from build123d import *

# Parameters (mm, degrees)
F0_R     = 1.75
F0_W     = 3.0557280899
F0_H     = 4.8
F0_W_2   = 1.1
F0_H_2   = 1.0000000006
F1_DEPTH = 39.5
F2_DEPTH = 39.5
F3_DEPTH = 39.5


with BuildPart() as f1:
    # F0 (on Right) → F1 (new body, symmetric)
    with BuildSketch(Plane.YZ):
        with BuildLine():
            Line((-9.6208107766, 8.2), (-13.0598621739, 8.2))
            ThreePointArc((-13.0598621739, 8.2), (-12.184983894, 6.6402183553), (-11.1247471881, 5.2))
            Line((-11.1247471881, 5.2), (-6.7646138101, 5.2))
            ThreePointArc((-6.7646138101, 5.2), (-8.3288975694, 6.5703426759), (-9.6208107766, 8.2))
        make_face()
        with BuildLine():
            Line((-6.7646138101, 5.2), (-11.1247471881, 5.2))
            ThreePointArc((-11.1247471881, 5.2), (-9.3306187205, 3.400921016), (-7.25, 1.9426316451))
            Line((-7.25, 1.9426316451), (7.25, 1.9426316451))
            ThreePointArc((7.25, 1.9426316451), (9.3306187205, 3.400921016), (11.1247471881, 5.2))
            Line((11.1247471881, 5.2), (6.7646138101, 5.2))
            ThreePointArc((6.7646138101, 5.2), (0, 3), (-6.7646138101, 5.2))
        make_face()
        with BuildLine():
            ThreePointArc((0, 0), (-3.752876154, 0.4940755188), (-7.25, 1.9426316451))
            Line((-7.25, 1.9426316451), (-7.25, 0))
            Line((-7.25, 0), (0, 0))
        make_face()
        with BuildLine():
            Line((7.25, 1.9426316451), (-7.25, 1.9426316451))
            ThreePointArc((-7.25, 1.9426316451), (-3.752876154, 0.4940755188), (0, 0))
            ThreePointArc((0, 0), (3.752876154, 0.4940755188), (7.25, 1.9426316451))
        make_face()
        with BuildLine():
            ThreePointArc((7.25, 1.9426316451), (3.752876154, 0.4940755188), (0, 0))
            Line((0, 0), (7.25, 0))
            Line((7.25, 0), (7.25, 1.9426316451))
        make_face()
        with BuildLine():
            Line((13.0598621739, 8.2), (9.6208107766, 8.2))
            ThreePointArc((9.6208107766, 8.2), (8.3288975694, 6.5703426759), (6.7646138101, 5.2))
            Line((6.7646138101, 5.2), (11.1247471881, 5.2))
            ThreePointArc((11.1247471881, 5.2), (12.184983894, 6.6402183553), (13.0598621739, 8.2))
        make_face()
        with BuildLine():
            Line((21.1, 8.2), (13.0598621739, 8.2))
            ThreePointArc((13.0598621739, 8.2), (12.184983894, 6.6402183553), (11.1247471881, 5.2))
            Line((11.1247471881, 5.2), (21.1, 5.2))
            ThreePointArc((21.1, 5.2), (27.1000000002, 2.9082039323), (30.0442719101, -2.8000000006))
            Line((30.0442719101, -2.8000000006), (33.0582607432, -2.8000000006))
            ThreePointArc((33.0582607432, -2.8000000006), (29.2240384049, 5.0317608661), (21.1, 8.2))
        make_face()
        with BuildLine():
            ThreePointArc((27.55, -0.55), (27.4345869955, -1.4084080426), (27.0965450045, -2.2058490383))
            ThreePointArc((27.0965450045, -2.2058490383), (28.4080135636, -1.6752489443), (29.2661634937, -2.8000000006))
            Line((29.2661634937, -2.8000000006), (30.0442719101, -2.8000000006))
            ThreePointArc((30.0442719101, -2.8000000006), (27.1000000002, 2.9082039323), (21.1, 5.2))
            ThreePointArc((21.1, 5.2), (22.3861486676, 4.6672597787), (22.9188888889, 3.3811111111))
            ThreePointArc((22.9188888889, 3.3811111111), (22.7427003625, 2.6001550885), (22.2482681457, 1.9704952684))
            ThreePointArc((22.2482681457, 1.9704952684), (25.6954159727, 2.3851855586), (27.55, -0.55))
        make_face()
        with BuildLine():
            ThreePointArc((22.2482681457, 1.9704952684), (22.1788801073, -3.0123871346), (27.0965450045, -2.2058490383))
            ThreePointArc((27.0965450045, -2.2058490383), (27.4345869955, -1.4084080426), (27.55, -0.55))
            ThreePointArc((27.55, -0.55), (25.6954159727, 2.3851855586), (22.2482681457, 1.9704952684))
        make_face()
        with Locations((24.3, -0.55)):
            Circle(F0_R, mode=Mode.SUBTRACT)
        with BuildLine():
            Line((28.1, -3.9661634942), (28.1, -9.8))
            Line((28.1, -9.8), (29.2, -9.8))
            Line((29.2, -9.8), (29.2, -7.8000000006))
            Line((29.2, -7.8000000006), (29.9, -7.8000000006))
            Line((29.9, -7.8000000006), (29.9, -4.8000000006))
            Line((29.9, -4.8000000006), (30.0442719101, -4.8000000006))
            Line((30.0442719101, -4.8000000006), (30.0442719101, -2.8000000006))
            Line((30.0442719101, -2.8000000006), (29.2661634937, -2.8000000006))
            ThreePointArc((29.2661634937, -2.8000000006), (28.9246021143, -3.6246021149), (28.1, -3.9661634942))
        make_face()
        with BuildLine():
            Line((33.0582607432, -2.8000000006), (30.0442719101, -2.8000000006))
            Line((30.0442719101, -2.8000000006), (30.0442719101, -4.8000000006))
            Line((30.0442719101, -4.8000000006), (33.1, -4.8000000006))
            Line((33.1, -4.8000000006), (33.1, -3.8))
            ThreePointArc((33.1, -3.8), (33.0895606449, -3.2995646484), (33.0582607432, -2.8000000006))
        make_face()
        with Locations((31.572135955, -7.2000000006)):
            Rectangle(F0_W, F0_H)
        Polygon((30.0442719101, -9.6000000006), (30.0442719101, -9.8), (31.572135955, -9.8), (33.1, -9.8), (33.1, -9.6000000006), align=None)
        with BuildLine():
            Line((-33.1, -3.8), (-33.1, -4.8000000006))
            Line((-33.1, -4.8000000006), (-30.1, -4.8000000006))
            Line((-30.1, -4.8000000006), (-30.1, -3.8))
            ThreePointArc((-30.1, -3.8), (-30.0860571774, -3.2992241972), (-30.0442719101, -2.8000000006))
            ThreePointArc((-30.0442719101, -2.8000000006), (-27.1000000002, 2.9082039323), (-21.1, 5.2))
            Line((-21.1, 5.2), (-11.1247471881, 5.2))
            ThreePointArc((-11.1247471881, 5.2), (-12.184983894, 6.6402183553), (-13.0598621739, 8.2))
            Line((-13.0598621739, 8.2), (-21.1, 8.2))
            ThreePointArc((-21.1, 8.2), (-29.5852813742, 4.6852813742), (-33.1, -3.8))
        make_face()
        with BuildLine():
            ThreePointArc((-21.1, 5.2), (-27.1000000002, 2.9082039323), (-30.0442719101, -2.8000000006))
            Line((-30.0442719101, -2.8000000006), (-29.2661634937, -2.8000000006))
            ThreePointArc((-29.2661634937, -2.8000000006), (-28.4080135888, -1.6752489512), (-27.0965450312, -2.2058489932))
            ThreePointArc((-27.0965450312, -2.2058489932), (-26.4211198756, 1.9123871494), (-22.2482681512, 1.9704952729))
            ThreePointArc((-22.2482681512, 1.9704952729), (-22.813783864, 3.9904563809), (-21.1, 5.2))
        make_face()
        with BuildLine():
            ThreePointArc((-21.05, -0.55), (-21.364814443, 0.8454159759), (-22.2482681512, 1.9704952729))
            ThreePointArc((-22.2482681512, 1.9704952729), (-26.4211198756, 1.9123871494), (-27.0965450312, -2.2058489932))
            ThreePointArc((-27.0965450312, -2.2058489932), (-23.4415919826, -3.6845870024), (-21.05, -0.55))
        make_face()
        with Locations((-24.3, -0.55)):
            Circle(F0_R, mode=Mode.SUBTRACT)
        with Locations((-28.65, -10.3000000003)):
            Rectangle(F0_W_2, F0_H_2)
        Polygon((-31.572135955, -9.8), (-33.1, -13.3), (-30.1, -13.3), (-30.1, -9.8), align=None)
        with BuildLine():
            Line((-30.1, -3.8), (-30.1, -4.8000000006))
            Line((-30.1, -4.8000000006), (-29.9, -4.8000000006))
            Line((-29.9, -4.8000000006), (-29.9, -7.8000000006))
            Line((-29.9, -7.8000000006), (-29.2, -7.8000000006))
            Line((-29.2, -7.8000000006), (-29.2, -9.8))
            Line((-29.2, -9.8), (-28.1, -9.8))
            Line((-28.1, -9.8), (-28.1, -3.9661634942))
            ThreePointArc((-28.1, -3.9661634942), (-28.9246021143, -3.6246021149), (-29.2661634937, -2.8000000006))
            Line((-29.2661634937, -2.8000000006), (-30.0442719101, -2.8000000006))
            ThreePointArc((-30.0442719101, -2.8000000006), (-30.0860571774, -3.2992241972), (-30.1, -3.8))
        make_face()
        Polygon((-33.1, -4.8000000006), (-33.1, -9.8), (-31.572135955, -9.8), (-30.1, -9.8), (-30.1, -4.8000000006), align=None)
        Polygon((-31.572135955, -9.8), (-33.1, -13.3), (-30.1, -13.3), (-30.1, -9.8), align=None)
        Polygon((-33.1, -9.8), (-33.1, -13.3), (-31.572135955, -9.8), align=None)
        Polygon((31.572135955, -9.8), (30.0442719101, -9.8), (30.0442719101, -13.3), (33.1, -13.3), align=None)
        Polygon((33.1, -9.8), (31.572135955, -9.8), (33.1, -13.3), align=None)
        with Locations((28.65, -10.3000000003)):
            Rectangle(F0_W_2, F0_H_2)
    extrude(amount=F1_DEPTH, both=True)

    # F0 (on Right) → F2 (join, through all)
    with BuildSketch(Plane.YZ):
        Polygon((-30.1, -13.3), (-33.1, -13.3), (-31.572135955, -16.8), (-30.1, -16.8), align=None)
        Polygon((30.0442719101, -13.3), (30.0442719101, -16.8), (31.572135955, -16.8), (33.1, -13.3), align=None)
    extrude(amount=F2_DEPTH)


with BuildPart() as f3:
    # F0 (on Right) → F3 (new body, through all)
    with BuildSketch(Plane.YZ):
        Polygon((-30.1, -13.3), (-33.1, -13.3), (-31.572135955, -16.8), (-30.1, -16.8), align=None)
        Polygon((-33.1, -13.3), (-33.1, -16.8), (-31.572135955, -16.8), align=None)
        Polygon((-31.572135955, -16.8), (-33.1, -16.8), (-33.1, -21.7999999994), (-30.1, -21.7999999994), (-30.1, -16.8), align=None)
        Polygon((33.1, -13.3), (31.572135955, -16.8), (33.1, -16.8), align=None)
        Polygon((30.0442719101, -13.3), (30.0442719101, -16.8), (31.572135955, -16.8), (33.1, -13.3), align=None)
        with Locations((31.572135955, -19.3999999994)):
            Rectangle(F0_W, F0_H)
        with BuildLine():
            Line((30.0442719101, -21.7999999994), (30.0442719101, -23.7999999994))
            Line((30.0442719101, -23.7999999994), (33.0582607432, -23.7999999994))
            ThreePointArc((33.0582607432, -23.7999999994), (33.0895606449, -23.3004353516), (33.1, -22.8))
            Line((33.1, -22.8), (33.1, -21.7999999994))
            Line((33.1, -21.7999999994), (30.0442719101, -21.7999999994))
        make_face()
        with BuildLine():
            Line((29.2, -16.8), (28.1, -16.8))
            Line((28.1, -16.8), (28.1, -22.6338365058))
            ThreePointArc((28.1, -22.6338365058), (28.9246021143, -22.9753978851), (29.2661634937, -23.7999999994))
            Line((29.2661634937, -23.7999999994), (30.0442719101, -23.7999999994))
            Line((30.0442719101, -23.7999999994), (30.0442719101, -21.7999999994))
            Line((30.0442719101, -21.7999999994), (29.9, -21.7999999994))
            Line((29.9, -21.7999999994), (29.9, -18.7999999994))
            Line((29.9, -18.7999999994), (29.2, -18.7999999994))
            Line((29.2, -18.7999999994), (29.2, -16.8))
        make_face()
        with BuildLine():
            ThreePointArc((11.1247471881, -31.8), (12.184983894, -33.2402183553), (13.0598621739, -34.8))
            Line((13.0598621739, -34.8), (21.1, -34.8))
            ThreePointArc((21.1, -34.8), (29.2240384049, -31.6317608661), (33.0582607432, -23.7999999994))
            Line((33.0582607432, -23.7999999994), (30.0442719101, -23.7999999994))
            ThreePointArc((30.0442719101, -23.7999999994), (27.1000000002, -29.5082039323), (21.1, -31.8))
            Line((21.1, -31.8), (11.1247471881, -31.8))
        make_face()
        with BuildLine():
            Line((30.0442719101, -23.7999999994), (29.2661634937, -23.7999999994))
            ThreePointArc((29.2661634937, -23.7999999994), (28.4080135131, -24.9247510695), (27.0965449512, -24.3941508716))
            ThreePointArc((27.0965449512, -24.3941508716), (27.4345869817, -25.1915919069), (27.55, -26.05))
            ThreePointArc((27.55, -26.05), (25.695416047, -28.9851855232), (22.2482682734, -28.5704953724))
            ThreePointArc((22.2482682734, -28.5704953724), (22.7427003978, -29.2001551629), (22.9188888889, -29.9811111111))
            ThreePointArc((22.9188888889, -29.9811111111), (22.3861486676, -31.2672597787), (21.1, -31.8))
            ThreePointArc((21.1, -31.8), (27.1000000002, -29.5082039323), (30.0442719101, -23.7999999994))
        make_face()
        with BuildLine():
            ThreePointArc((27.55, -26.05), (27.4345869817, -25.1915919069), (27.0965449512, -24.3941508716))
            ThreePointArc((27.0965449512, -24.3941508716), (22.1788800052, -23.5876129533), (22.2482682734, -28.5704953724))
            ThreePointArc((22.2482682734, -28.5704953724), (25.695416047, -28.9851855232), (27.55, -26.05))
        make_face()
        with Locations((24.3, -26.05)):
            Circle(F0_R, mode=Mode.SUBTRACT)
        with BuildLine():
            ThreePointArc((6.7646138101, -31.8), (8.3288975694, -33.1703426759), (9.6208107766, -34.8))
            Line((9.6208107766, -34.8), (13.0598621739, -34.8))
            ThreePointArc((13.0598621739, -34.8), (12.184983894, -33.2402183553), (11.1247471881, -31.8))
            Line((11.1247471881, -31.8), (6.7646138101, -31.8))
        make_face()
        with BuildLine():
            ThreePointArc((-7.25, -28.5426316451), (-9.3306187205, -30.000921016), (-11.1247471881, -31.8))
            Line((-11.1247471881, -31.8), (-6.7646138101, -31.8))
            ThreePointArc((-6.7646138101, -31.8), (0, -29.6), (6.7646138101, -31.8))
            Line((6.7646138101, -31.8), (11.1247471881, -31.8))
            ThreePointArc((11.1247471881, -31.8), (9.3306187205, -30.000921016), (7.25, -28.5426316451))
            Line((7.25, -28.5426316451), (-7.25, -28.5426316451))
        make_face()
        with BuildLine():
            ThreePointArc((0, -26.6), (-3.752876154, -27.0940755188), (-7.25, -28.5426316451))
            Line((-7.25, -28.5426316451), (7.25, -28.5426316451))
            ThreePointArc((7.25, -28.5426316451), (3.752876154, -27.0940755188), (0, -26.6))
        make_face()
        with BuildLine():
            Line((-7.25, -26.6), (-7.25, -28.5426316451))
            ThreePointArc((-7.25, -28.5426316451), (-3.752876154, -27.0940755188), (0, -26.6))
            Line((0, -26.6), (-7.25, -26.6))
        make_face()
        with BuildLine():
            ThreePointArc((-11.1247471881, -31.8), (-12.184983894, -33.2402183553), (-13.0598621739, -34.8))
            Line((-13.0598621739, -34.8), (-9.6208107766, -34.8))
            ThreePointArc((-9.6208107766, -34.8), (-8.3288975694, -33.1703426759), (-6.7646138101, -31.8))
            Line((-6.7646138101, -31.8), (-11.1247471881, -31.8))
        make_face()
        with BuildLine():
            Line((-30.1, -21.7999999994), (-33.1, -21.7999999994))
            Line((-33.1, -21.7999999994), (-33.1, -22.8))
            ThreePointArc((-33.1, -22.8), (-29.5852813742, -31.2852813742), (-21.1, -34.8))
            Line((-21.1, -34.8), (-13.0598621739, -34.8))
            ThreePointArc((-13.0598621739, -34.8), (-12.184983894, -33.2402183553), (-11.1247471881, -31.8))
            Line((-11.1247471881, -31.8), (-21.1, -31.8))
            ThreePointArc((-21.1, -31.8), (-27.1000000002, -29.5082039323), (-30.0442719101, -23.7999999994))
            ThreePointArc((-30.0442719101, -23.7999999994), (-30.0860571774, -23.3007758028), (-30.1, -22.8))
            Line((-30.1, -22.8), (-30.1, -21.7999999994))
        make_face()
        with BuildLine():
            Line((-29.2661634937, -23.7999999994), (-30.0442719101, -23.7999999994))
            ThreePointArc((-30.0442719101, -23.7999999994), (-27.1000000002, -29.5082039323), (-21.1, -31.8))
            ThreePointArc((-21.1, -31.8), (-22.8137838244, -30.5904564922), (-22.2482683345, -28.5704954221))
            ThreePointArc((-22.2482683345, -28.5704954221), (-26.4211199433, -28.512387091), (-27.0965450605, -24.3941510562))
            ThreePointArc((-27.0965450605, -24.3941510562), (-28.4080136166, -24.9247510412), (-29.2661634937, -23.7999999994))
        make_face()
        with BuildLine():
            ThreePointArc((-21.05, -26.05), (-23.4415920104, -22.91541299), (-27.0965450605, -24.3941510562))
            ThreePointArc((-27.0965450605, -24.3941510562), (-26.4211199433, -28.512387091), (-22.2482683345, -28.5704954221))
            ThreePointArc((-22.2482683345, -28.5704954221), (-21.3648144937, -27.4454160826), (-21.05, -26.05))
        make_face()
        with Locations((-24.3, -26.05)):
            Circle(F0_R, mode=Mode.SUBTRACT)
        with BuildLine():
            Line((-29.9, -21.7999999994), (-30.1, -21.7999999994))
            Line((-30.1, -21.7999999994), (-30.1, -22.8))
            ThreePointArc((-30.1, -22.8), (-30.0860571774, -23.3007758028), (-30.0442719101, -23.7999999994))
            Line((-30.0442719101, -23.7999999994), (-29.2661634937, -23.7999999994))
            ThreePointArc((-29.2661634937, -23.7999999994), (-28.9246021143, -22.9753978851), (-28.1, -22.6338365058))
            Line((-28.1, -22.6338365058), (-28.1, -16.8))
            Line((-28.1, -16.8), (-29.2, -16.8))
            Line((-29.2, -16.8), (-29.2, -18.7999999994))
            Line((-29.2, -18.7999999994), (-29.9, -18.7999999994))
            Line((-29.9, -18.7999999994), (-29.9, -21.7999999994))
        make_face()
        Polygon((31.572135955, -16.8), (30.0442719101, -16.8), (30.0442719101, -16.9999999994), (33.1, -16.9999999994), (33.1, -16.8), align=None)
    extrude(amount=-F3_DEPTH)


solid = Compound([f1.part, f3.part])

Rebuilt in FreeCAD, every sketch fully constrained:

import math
import FreeCAD as App
import Part
import Sketcher
from FreeCAD import Vector
Q = App.Units.Quantity

doc = App.newDocument("Part")
params = doc.addObject("Spreadsheet::Sheet", "Params")
for row, (alias, value) in enumerate([
    ("sketch1_radius", "12 mm"),
    ("sketch1_diameter", "3.5 mm"),
    ("sketch1_radius2", "11.5 mm"),
    ("sketch1_radius3", "14.5 mm"),
    ("sketch1_width", "3 mm"),
    ("pad1_length", "79 mm"),
    ("sketch2_width", "3 mm"),
    ("sketch2_height", "3.5 mm"),
    ("pad2_length", "39.5 mm"),
    ("sketch3_radius", "12 mm"),
    ("sketch3_diameter", "3.5 mm"),
    ("sketch3_radius2", "11.5 mm"),
    ("sketch3_radius3", "14.5 mm"),
    ("sketch3_width", "3 mm"),
    ("pad3_length", "39.5 mm"),
], start=1):
    params.set(f"A{row}", alias)
    params.set(f"B{row}", "=" + value)
    params.setAlias(f"B{row}", alias)

body = doc.addObject("PartDesign::Body", "Body")

# Sketch on YZ plane
sketch1 = body.newObject("Sketcher::SketchObject", "Sketch")
sketch1.AttachmentSupport = (doc.getObject("YZ_Plane"), [""])
sketch1.MapMode = "FlatFace"
sketch1.addGeometry([
    Part.ArcOfCircle(Part.Circle(Vector(0, 14.5, 0), Vector(0, 0, 1), 11.5), math.radians(-146.781999), math.radians(-126.031312)),  # 0
    Part.LineSegment(Vector(-9.620811, 8.2, 0), Vector(-21.1, 8.2, 0)),  # 1
    Part.ArcOfCircle(Part.Circle(Vector(-21.1, -3.8, 0), Vector(0, 0, 1), 12), math.radians(90), math.radians(180)),  # 2
    Part.LineSegment(Vector(-33.1, -3.8, 0), Vector(-33.1, -13.3, 0)),  # 3
    Part.LineSegment(Vector(-33.1, -13.3, 0), Vector(-30.1, -13.3, 0)),  # 4
    Part.LineSegment(Vector(-30.1, -13.3, 0), Vector(-30.1, -4.8, 0)),  # 5
    Part.LineSegment(Vector(-30.1, -4.8, 0), Vector(-29.9, -4.8, 0)),  # 6
    Part.LineSegment(Vector(-29.9, -4.8, 0), Vector(-29.9, -7.8, 0)),  # 7
    Part.LineSegment(Vector(-29.9, -7.8, 0), Vector(-29.2, -7.8, 0)),  # 8
    Part.LineSegment(Vector(-29.2, -7.8, 0), Vector(-29.2, -10.8, 0)),  # 9
    Part.LineSegment(Vector(-29.2, -10.8, 0), Vector(-28.1, -10.8, 0)),  # 10
    Part.LineSegment(Vector(-28.1, -10.8, 0), Vector(-28.1, -3.966163, 0)),  # 11
    Part.ArcOfCircle(Part.Circle(Vector(-28.1, -2.8, 0), Vector(0, 0, 1), 1.166163), math.radians(-180), math.radians(-90)),  # 12
    Part.ArcOfCircle(Part.Circle(Vector(-28.1, -2.8, 0), Vector(0, 0, 1), 1.166163), math.radians(30.63), math.radians(180)),  # 13
    Part.ArcOfCircle(Part.Circle(Vector(-24.3, -0.55, 0), Vector(0, 0, 1), 3.25), math.radians(-149.370002), math.radians(0)),  # 14
    Part.ArcOfCircle(Part.Circle(Vector(-24.3, -0.55, 0), Vector(0, 0, 1), 3.25), math.radians(0), math.radians(50.853745)),  # 15
    Part.ArcOfCircle(Part.Circle(Vector(-21.1, 3.381111, 0), Vector(0, 0, 1), 1.818889), math.radians(90), math.radians(230.853755)),  # 16
    Part.LineSegment(Vector(-21.1, 5.2, 0), Vector(-11.124747, 5.2, 0)),  # 17
    Part.ArcOfCircle(Part.Circle(Vector(0, 14.5, 0), Vector(0, 0, 1), 14.5), math.radians(-140.105252), math.radians(-120)),  # 18
    Part.LineSegment(Vector(-7.25, 1.942632, 0), Vector(-7.25, 0, 0)),  # 19
    Part.LineSegment(Vector(-7.25, 0, 0), Vector(7.25, 0, 0)),  # 20
    Part.LineSegment(Vector(7.25, 0, 0), Vector(7.25, 1.942632, 0)),  # 21
    Part.ArcOfCircle(Part.Circle(Vector(0, 14.5, 0), Vector(0, 0, 1), 14.5), math.radians(-60), math.radians(-39.894748)),  # 22
    Part.LineSegment(Vector(11.124747, 5.2, 0), Vector(21.1, 5.2, 0)),  # 23
    Part.ArcOfCircle(Part.Circle(Vector(21.1, 3.381111, 0), Vector(0, 0, 1), 1.818889), math.radians(0), math.radians(90)),  # 24
    Part.ArcOfCircle(Part.Circle(Vector(21.1, 3.381111, 0), Vector(0, 0, 1), 1.818889), math.radians(-50.853755), math.radians(0)),  # 25
    Part.ArcOfCircle(Part.Circle(Vector(24.3, -0.55, 0), Vector(0, 0, 1), 3.25), math.radians(129.146255), math.radians(329.370001)),  # 26
    Part.ArcOfCircle(Part.Circle(Vector(28.1, -2.8, 0), Vector(0, 0, 1), 1.166163), math.radians(0), math.radians(149.370002)),  # 27
    Part.ArcOfCircle(Part.Circle(Vector(28.1, -2.8, 0), Vector(0, 0, 1), 1.166163), math.radians(-90), math.radians(0)),  # 28
    Part.LineSegment(Vector(28.1, -3.966163, 0), Vector(28.1, -10.8, 0)),  # 29
    Part.LineSegment(Vector(28.1, -10.8, 0), Vector(29.2, -10.8, 0)),  # 30
    Part.LineSegment(Vector(29.2, -10.8, 0), Vector(29.2, -7.8, 0)),  # 31
    Part.LineSegment(Vector(29.2, -7.8, 0), Vector(29.9, -7.8, 0)),  # 32
    Part.LineSegment(Vector(29.9, -7.8, 0), Vector(29.9, -4.8, 0)),  # 33
    Part.LineSegment(Vector(29.9, -4.8, 0), Vector(30.044272, -4.8, 0)),  # 34
    Part.LineSegment(Vector(30.044272, -4.8, 0), Vector(30.044272, -9.6, 0)),  # 35
    Part.LineSegment(Vector(30.044272, -9.6, 0), Vector(30.044272, -13.3, 0)),  # 36
    Part.LineSegment(Vector(30.044272, -13.3, 0), Vector(33.1, -13.3, 0)),  # 37
    Part.LineSegment(Vector(33.1, -13.3, 0), Vector(33.1, -9.6, 0)),  # 38
    Part.LineSegment(Vector(33.1, -9.6, 0), Vector(33.1, -4.8, 0)),  # 39
    Part.LineSegment(Vector(33.1, -4.8, 0), Vector(33.1, -3.8, 0)),  # 40
    Part.ArcOfCircle(Part.Circle(Vector(21.1, -3.8, 0), Vector(0, 0, 1), 12), math.radians(0), math.radians(4.780192)),  # 41
    Part.ArcOfCircle(Part.Circle(Vector(21.1, -3.8, 0), Vector(0, 0, 1), 12), math.radians(4.780192), math.radians(90)),  # 42
    Part.LineSegment(Vector(21.1, 8.2, 0), Vector(9.620811, 8.2, 0)),  # 43
    Part.ArcOfCircle(Part.Circle(Vector(0, 14.5, 0), Vector(0, 0, 1), 11.5), math.radians(-53.968688), math.radians(-33.218001)),  # 44
    Part.ArcOfCircle(Part.Circle(Vector(0, 14.5, 0), Vector(0, 0, 1), 11.5), math.radians(-126.031312), math.radians(-53.968688)),  # 45
    Part.Circle(Vector(-24.3, -0.55, 0), Vector(0, 0, 1), 1.75),  # 46
    Part.Circle(Vector(24.3, -0.55, 0), Vector(0, 0, 1), 1.75),  # 47
], False)
sketch1.addConstraint([
    Sketcher.Constraint("Coincident", 0, 1, 1, 1),
    Sketcher.Constraint("Tangent", 1, 2, 2, 1),
    Sketcher.Constraint("Tangent", 2, 2, 3, 1),
    Sketcher.Constraint("Coincident", 3, 2, 4, 1),
    Sketcher.Constraint("Coincident", 4, 2, 5, 1),
    Sketcher.Constraint("Coincident", 5, 2, 6, 1),
    Sketcher.Constraint("Coincident", 6, 2, 7, 1),
    Sketcher.Constraint("Coincident", 7, 2, 8, 1),
    Sketcher.Constraint("Coincident", 8, 2, 9, 1),
    Sketcher.Constraint("Coincident", 9, 2, 10, 1),
    Sketcher.Constraint("Coincident", 10, 2, 11, 1),
    Sketcher.Constraint("Coincident", 11, 2, 12, 2),
    Sketcher.Constraint("Tangent", 12, 1, 13, 2),
    Sketcher.Constraint("Tangent", 13, 1, 14, 1),
    Sketcher.Constraint("Tangent", 14, 2, 15, 1),
    Sketcher.Constraint("Tangent", 15, 2, 16, 2),
    Sketcher.Constraint("Tangent", 16, 1, 17, 1),
    Sketcher.Constraint("Coincident", 17, 2, 18, 1),
    Sketcher.Constraint("Coincident", 18, 2, 19, 1),
    Sketcher.Constraint("Coincident", 19, 2, 20, 1),
    Sketcher.Constraint("Coincident", 20, 2, 21, 1),
    Sketcher.Constraint("Coincident", 21, 2, 22, 1),
    Sketcher.Constraint("Coincident", 22, 2, 23, 1),
    Sketcher.Constraint("Tangent", 23, 2, 24, 2),
    Sketcher.Constraint("Tangent", 24, 1, 25, 2),
    Sketcher.Constraint("Tangent", 25, 1, 26, 1),
    Sketcher.Constraint("Tangent", 26, 2, 27, 2),
    Sketcher.Constraint("Tangent", 27, 1, 28, 2),
    Sketcher.Constraint("Coincident", 28, 1, 29, 1),
    Sketcher.Constraint("Coincident", 29, 2, 30, 1),
    Sketcher.Constraint("Coincident", 30, 2, 31, 1),
    Sketcher.Constraint("Coincident", 31, 2, 32, 1),
    Sketcher.Constraint("Coincident", 32, 2, 33, 1),
    Sketcher.Constraint("Coincident", 33, 2, 34, 1),
    Sketcher.Constraint("Coincident", 34, 2, 35, 1),
    Sketcher.Constraint("Coincident", 35, 2, 36, 1),
    Sketcher.Constraint("Coincident", 36, 2, 37, 1),
    Sketcher.Constraint("Coincident", 37, 2, 38, 1),
    Sketcher.Constraint("Coincident", 38, 2, 39, 1),
    Sketcher.Constraint("Coincident", 39, 2, 40, 1),
    Sketcher.Constraint("Tangent", 40, 2, 41, 1),
    Sketcher.Constraint("Tangent", 41, 2, 42, 1),
    Sketcher.Constraint("Tangent", 42, 2, 43, 1),
    Sketcher.Constraint("Coincident", 43, 2, 44, 2),
    Sketcher.Constraint("Tangent", 44, 1, 45, 2),
    Sketcher.Constraint("Tangent", 45, 1, 0, 2),
    Sketcher.Constraint("Horizontal", 1),
    Sketcher.Constraint("Vertical", 3),
    Sketcher.Constraint("Horizontal", 4),
    Sketcher.Constraint("Vertical", 5),
    Sketcher.Constraint("Horizontal", 6),
    Sketcher.Constraint("Vertical", 7),
    Sketcher.Constraint("Horizontal", 8),
    Sketcher.Constraint("Vertical", 9),
    Sketcher.Constraint("Horizontal", 10),
    Sketcher.Constraint("Vertical", 11),
    Sketcher.Constraint("Horizontal", 17),
    Sketcher.Constraint("Vertical", 19),
    Sketcher.Constraint("Horizontal", 20),
    Sketcher.Constraint("Vertical", 21),
    Sketcher.Constraint("Horizontal", 23),
    Sketcher.Constraint("Vertical", 29),
    Sketcher.Constraint("Horizontal", 30),
    Sketcher.Constraint("Vertical", 31),
    Sketcher.Constraint("Horizontal", 32),
    Sketcher.Constraint("Vertical", 33),
    Sketcher.Constraint("Horizontal", 34),
    Sketcher.Constraint("Vertical", 35),
    Sketcher.Constraint("Vertical", 36),
    Sketcher.Constraint("Horizontal", 37),
    Sketcher.Constraint("Vertical", 38),
    Sketcher.Constraint("Vertical", 39),
    Sketcher.Constraint("Vertical", 40),
    Sketcher.Constraint("Horizontal", 43),
    Sketcher.Constraint("Coincident", 18, 3, 0, 3),
    Sketcher.Constraint("Coincident", 22, 3, 0, 3),
    Sketcher.Constraint("Coincident", 44, 3, 0, 3),
    Sketcher.Constraint("Coincident", 46, 3, 14, 3),
    Sketcher.Constraint("Coincident", 47, 3, 26, 3),
    Sketcher.Constraint("Equal", 12, 13),
    Sketcher.Constraint("Equal", 14, 15),
    Sketcher.Constraint("Equal", 18, 22),
    Sketcher.Constraint("Equal", 16, 24),
    Sketcher.Constraint("Equal", 24, 25),
    Sketcher.Constraint("Equal", 15, 26),
    Sketcher.Constraint("Equal", 13, 27),
    Sketcher.Constraint("Equal", 27, 28),
    Sketcher.Constraint("Equal", 2, 41),
    Sketcher.Constraint("Equal", 41, 42),
    Sketcher.Constraint("Equal", 46, 47),
    Sketcher.Constraint("Symmetric", 19, 2, 20, 2, -1, 1),
    Sketcher.Constraint("Symmetric", 16, 3, 24, 3, -2),
    Sketcher.Constraint("Symmetric", 12, 3, 27, 3, -2),
    Sketcher.Constraint("Symmetric", 2, 3, 41, 3, -2),
    Sketcher.Constraint("Symmetric", 10, 2, 29, 2, -2),
    Sketcher.Constraint("Symmetric", 8, 2, 31, 2, -2),
    Sketcher.Constraint("Symmetric", 6, 2, 33, 2, -2),
    Sketcher.Constraint("Symmetric", 44, 1, 45, 1, -2),
    Sketcher.Constraint("Horizontal", 28, 3, 12, 1),
    Sketcher.Constraint("Horizontal", 47, 3, 14, 2),
    Sketcher.Constraint("Horizontal", 25, 3, 24, 1),
    Sketcher.Constraint("Horizontal", 12, 1, 27, 1),
    Sketcher.Constraint("Horizontal", 4, 2, 36, 2),
    Sketcher.Constraint("Horizontal", 35, 2, 38, 2),
    Sketcher.Constraint("Horizontal", 34, 2, 39, 2),
    Sketcher.Constraint("Horizontal", 27, 1, 41, 2),
    Sketcher.Constraint("Horizontal", 23, 2, 44, 1),
    Sketcher.Constraint("Vertical", 2, 3, 16, 3),
    Sketcher.Constraint("Vertical", 13, 3, 10, 2),
    Sketcher.Constraint("Equal", 4, 7),
    Sketcher.Constraint("Equal", 7, 9),
    Sketcher.Constraint("Radius", 2, Q("12 mm")),
    Sketcher.Constraint("Diameter", 46, Q("3.5 mm")),
    Sketcher.Constraint("Radius", 0, Q("11.5 mm")),
    Sketcher.Constraint("Radius", 18, Q("14.5 mm")),
    Sketcher.Constraint("DistanceX", 4, 1, 4, 2, Q("3 mm")),
    Sketcher.Constraint("DistanceY", 40, 1, 40, 2, Q("1 mm")),
    Sketcher.Constraint("Radius", 14, Q("3.25 mm")),
    Sketcher.Constraint("DistanceX", 6, 1, 6, 2, Q("0.2 mm")),
    Sketcher.Constraint("DistanceX", 8, 1, 8, 2, Q("0.7 mm")),
    Sketcher.Constraint("DistanceX", 10, 1, 10, 2, Q("1.1 mm")),
    Sketcher.Constraint("DistanceX", 20, 1, 20, 2, Q("14.5 mm")),
    Sketcher.Constraint("DistanceY", 3, 2, 3, 1, Q("9.5 mm")),
    Sketcher.Constraint("DistanceY", 35, 2, 35, 1, Q("4.8 mm")),
    Sketcher.Constraint("DistanceY", -1, 1, 0, 3, Q("14.5 mm")),
    Sketcher.Constraint("DistanceX", 2, 3, -1, 1, Q("21.1 mm")),
    Sketcher.Constraint("DistanceY", 2, 3, -1, 1, Q("3.8 mm")),
    Sketcher.Constraint("DistanceY", 12, 3, -1, 1, Q("2.8 mm")),
    Sketcher.Constraint("DistanceX", 14, 3, -1, 1, Q("24.3 mm")),
    Sketcher.Constraint("DistanceY", -1, 1, 16, 1, Q("5.2 mm")),
    Sketcher.Constraint("DistanceY", 14, 3, -1, 1, Q("0.55 mm")),
    Sketcher.Constraint("DistanceX", 34, 1, 34, 2, Q("0.144272 mm")),
])
sketch1.setExpression("Constraints[111]", "Params.sketch1_radius")
sketch1.setExpression("Constraints[112]", "Params.sketch1_diameter")
sketch1.setExpression("Constraints[113]", "Params.sketch1_radius2")
sketch1.setExpression("Constraints[114]", "Params.sketch1_radius3")
sketch1.setExpression("Constraints[115]", "Params.sketch1_width")
pad1 = body.newObject("PartDesign::Pad", "Pad")
pad1.Profile = sketch1
pad1.setExpression("Length", "Params.pad1_length")
pad1.Midplane = True

# Sketch on YZ plane
sketch2 = body.newObject("Sketcher::SketchObject", "Sketch001")
sketch2.AttachmentSupport = (doc.getObject("YZ_Plane"), [""])
sketch2.MapMode = "FlatFace"
sketch2.addGeometry([
    Part.LineSegment(Vector(-30.1, -13.3, 0), Vector(-33.1, -13.3, 0)),  # 0
    Part.LineSegment(Vector(-33.1, -13.3, 0), Vector(-31.572136, -16.8, 0)),  # 1
    Part.LineSegment(Vector(-31.572136, -16.8, 0), Vector(-30.1, -16.8, 0)),  # 2
    Part.LineSegment(Vector(-30.1, -16.8, 0), Vector(-30.1, -13.3, 0)),  # 3
    Part.LineSegment(Vector(30.044272, -13.3, 0), Vector(30.044272, -16.8, 0)),  # 4
    Part.LineSegment(Vector(30.044272, -16.8, 0), Vector(31.572136, -16.8, 0)),  # 5
    Part.LineSegment(Vector(31.572136, -16.8, 0), Vector(33.1, -13.3, 0)),  # 6
    Part.LineSegment(Vector(33.1, -13.3, 0), Vector(30.044272, -13.3, 0)),  # 7
], False)
sketch2.addConstraint([
    Sketcher.Constraint("Coincident", 0, 2, 1, 1),
    Sketcher.Constraint("Coincident", 1, 2, 2, 1),
    Sketcher.Constraint("Coincident", 2, 2, 3, 1),
    Sketcher.Constraint("Coincident", 3, 2, 0, 1),
    Sketcher.Constraint("Coincident", 4, 2, 5, 1),
    Sketcher.Constraint("Coincident", 5, 2, 6, 1),
    Sketcher.Constraint("Coincident", 6, 2, 7, 1),
    Sketcher.Constraint("Coincident", 7, 2, 4, 1),
    Sketcher.Constraint("Horizontal", 0),
    Sketcher.Constraint("Horizontal", 2),
    Sketcher.Constraint("Vertical", 3),
    Sketcher.Constraint("Vertical", 4),
    Sketcher.Constraint("Horizontal", 5),
    Sketcher.Constraint("Horizontal", 7),
    Sketcher.Constraint("Symmetric", 1, 2, 5, 2, -2),
    Sketcher.Constraint("Symmetric", 0, 2, 6, 2, -2),
    Sketcher.Constraint("DistanceX", 0, 2, 0, 1, Q("3 mm")),
    Sketcher.Constraint("DistanceY", 3, 1, 3, 2, Q("3.5 mm")),
    Sketcher.Constraint("DistanceX", 0, 2, -1, 1, Q("33.1 mm")),
    Sketcher.Constraint("DistanceY", 0, 2, -1, 1, Q("13.3 mm")),
    Sketcher.Constraint("DistanceX", 7, 2, 7, 1, Q("3.055728 mm")),
    Sketcher.Constraint("Distance", 1, Q("3.818949 mm")),
])
sketch2.setExpression("Constraints[16]", "Params.sketch2_width")
sketch2.setExpression("Constraints[17]", "Params.sketch2_height")
pad2 = body.newObject("PartDesign::Pad", "Pad001")
pad2.Profile = sketch2
pad2.setExpression("Length", "Params.pad2_length")
body2 = doc.addObject("PartDesign::Body", "Body001")

# Sketch on YZ plane
sketch3 = body2.newObject("Sketcher::SketchObject", "Sketch002")
sketch3.AttachmentSupport = (doc.getObject("YZ_Plane001"), [""])
sketch3.MapMode = "FlatFace"
sketch3.addGeometry([
    Part.LineSegment(Vector(-30.1, -13.3, 0), Vector(-33.1, -13.3, 0)),  # 0
    Part.LineSegment(Vector(-33.1, -13.3, 0), Vector(-33.1, -22.8, 0)),  # 1
    Part.ArcOfCircle(Part.Circle(Vector(-21.1, -22.8, 0), Vector(0, 0, 1), 12), math.radians(180), math.radians(270)),  # 2
    Part.LineSegment(Vector(-21.1, -34.8, 0), Vector(-9.620811, -34.8, 0)),  # 3
    Part.ArcOfCircle(Part.Circle(Vector(0, -41.1, 0), Vector(0, 0, 1), 11.5), math.radians(126.031312), math.radians(146.781999)),  # 4
    Part.ArcOfCircle(Part.Circle(Vector(0, -41.1, 0), Vector(0, 0, 1), 11.5), math.radians(53.968688), math.radians(126.031312)),  # 5
    Part.ArcOfCircle(Part.Circle(Vector(0, -41.1, 0), Vector(0, 0, 1), 11.5), math.radians(33.218001), math.radians(53.968688)),  # 6
    Part.LineSegment(Vector(9.620811, -34.8, 0), Vector(21.1, -34.8, 0)),  # 7
    Part.ArcOfCircle(Part.Circle(Vector(21.1, -22.8, 0), Vector(0, 0, 1), 12), math.radians(-90), math.radians(-4.780192)),  # 8
    Part.ArcOfCircle(Part.Circle(Vector(21.1, -22.8, 0), Vector(0, 0, 1), 12), math.radians(-4.780192), math.radians(0)),  # 9
    Part.LineSegment(Vector(33.1, -22.8, 0), Vector(33.1, -21.8, 0)),  # 10
    Part.LineSegment(Vector(33.1, -21.8, 0), Vector(33.1, -17, 0)),  # 11
    Part.LineSegment(Vector(33.1, -17, 0), Vector(33.1, -13.3, 0)),  # 12
    Part.LineSegment(Vector(33.1, -13.3, 0), Vector(30.044272, -13.3, 0)),  # 13
    Part.LineSegment(Vector(30.044272, -13.3, 0), Vector(30.044272, -17, 0)),  # 14
    Part.LineSegment(Vector(30.044272, -17, 0), Vector(30.044272, -21.8, 0)),  # 15
    Part.LineSegment(Vector(30.044272, -21.8, 0), Vector(29.9, -21.8, 0)),  # 16
    Part.LineSegment(Vector(29.9, -21.8, 0), Vector(29.9, -18.8, 0)),  # 17
    Part.LineSegment(Vector(29.9, -18.8, 0), Vector(29.2, -18.8, 0)),  # 18
    Part.LineSegment(Vector(29.2, -18.8, 0), Vector(29.2, -16.8, 0)),  # 19
    Part.LineSegment(Vector(29.2, -16.8, 0), Vector(28.1, -16.8, 0)),  # 20
    Part.LineSegment(Vector(28.1, -16.8, 0), Vector(28.1, -22.633837, 0)),  # 21
    Part.ArcOfCircle(Part.Circle(Vector(28.1, -23.8, 0), Vector(0, 0, 1), 1.166163), math.radians(0), math.radians(90)),  # 22
    Part.ArcOfCircle(Part.Circle(Vector(28.1, -23.8, 0), Vector(0, 0, 1), 1.166163), math.radians(-149.370008), math.radians(0)),  # 23
    Part.ArcOfCircle(Part.Circle(Vector(24.3, -26.05, 0), Vector(0, 0, 1), 3.25), math.radians(30.630001), math.radians(230.853748)),  # 24
    Part.ArcOfCircle(Part.Circle(Vector(21.1, -29.981111, 0), Vector(0, 0, 1), 1.818889), math.radians(0), math.radians(50.85375)),  # 25
    Part.ArcOfCircle(Part.Circle(Vector(21.1, -29.981111, 0), Vector(0, 0, 1), 1.818889), math.radians(-90), math.radians(0)),  # 26
    Part.LineSegment(Vector(21.1, -31.8, 0), Vector(11.124747, -31.8, 0)),  # 27
    Part.ArcOfCircle(Part.Circle(Vector(0, -41.1, 0), Vector(0, 0, 1), 14.5), math.radians(39.894748), math.radians(60)),  # 28
    Part.ArcOfCircle(Part.Circle(Vector(0, -41.1, 0), Vector(0, 0, 1), 14.5), math.radians(60), math.radians(90)),  # 29
    Part.LineSegment(Vector(0, -26.6, 0), Vector(-7.25, -26.6, 0)),  # 30
    Part.LineSegment(Vector(-7.25, -26.6, 0), Vector(-7.25, -28.542632, 0)),  # 31
    Part.ArcOfCircle(Part.Circle(Vector(0, -41.1, 0), Vector(0, 0, 1), 14.5), math.radians(120), math.radians(140.105252)),  # 32
    Part.LineSegment(Vector(-11.124747, -31.8, 0), Vector(-21.1, -31.8, 0)),  # 33
    Part.ArcOfCircle(Part.Circle(Vector(-21.1, -29.981111, 0), Vector(0, 0, 1), 1.818889), math.radians(129.146253), math.radians(270)),  # 34
    Part.ArcOfCircle(Part.Circle(Vector(-24.3, -26.05, 0), Vector(0, 0, 1), 3.25), math.radians(-50.853749), math.radians(0)),  # 35
    Part.ArcOfCircle(Part.Circle(Vector(-24.3, -26.05, 0), Vector(0, 0, 1), 3.25), math.radians(0), math.radians(149.370003)),  # 36
    Part.ArcOfCircle(Part.Circle(Vector(-28.1, -23.8, 0), Vector(0, 0, 1), 1.166163), math.radians(180), math.radians(329.369997)),  # 37
    Part.ArcOfCircle(Part.Circle(Vector(-28.1, -23.8, 0), Vector(0, 0, 1), 1.166163), math.radians(90), math.radians(180)),  # 38
    Part.LineSegment(Vector(-28.1, -22.633837, 0), Vector(-28.1, -16.8, 0)),  # 39
    Part.LineSegment(Vector(-28.1, -16.8, 0), Vector(-29.2, -16.8, 0)),  # 40
    Part.LineSegment(Vector(-29.2, -16.8, 0), Vector(-29.2, -18.8, 0)),  # 41
    Part.LineSegment(Vector(-29.2, -18.8, 0), Vector(-29.9, -18.8, 0)),  # 42
    Part.LineSegment(Vector(-29.9, -18.8, 0), Vector(-29.9, -21.8, 0)),  # 43
    Part.LineSegment(Vector(-29.9, -21.8, 0), Vector(-30.1, -21.8, 0)),  # 44
    Part.LineSegment(Vector(-30.1, -21.8, 0), Vector(-30.1, -13.3, 0)),  # 45
    Part.Circle(Vector(-24.3, -26.05, 0), Vector(0, 0, 1), 1.75),  # 46
    Part.Circle(Vector(24.3, -26.05, 0), Vector(0, 0, 1), 1.75),  # 47
], False)
sketch3.addConstraint([
    Sketcher.Constraint("Coincident", 0, 2, 1, 1),
    Sketcher.Constraint("Tangent", 1, 2, 2, 1),
    Sketcher.Constraint("Tangent", 2, 2, 3, 1),
    Sketcher.Constraint("Coincident", 3, 2, 4, 2),
    Sketcher.Constraint("Tangent", 4, 1, 5, 2),
    Sketcher.Constraint("Tangent", 5, 1, 6, 2),
    Sketcher.Constraint("Coincident", 6, 1, 7, 1),
    Sketcher.Constraint("Tangent", 7, 2, 8, 1),
    Sketcher.Constraint("Tangent", 8, 2, 9, 1),
    Sketcher.Constraint("Tangent", 9, 2, 10, 1),
    Sketcher.Constraint("Coincident", 10, 2, 11, 1),
    Sketcher.Constraint("Coincident", 11, 2, 12, 1),
    Sketcher.Constraint("Coincident", 12, 2, 13, 1),
    Sketcher.Constraint("Coincident", 13, 2, 14, 1),
    Sketcher.Constraint("Coincident", 14, 2, 15, 1),
    Sketcher.Constraint("Coincident", 15, 2, 16, 1),
    Sketcher.Constraint("Coincident", 16, 2, 17, 1),
    Sketcher.Constraint("Coincident", 17, 2, 18, 1),
    Sketcher.Constraint("Coincident", 18, 2, 19, 1),
    Sketcher.Constraint("Coincident", 19, 2, 20, 1),
    Sketcher.Constraint("Coincident", 20, 2, 21, 1),
    Sketcher.Constraint("Coincident", 21, 2, 22, 2),
    Sketcher.Constraint("Tangent", 22, 1, 23, 2),
    Sketcher.Constraint("Tangent", 23, 1, 24, 1),
    Sketcher.Constraint("Tangent", 24, 2, 25, 2),
    Sketcher.Constraint("Tangent", 25, 1, 26, 2),
    Sketcher.Constraint("Tangent", 26, 1, 27, 1),
    Sketcher.Constraint("Coincident", 27, 2, 28, 1),
    Sketcher.Constraint("Tangent", 28, 2, 29, 1),
    Sketcher.Constraint("Tangent", 29, 2, 30, 1),
    Sketcher.Constraint("Coincident", 30, 2, 31, 1),
    Sketcher.Constraint("Coincident", 31, 2, 32, 1),
    Sketcher.Constraint("Coincident", 32, 2, 33, 1),
    Sketcher.Constraint("Tangent", 33, 2, 34, 2),
    Sketcher.Constraint("Tangent", 34, 1, 35, 1),
    Sketcher.Constraint("Tangent", 35, 2, 36, 1),
    Sketcher.Constraint("Tangent", 36, 2, 37, 2),
    Sketcher.Constraint("Tangent", 37, 1, 38, 2),
    Sketcher.Constraint("Coincident", 38, 1, 39, 1),
    Sketcher.Constraint("Coincident", 39, 2, 40, 1),
    Sketcher.Constraint("Coincident", 40, 2, 41, 1),
    Sketcher.Constraint("Coincident", 41, 2, 42, 1),
    Sketcher.Constraint("Coincident", 42, 2, 43, 1),
    Sketcher.Constraint("Coincident", 43, 2, 44, 1),
    Sketcher.Constraint("Coincident", 44, 2, 45, 1),
    Sketcher.Constraint("Coincident", 45, 2, 0, 1),
    Sketcher.Constraint("Horizontal", 0),
    Sketcher.Constraint("Vertical", 1),
    Sketcher.Constraint("Horizontal", 3),
    Sketcher.Constraint("Horizontal", 7),
    Sketcher.Constraint("Vertical", 10),
    Sketcher.Constraint("Vertical", 11),
    Sketcher.Constraint("Vertical", 12),
    Sketcher.Constraint("Horizontal", 13),
    Sketcher.Constraint("Vertical", 14),
    Sketcher.Constraint("Vertical", 15),
    Sketcher.Constraint("Horizontal", 16),
    Sketcher.Constraint("Vertical", 17),
    Sketcher.Constraint("Horizontal", 18),
    Sketcher.Constraint("Vertical", 19),
    Sketcher.Constraint("Horizontal", 20),
    Sketcher.Constraint("Vertical", 21),
    Sketcher.Constraint("Horizontal", 27),
    Sketcher.Constraint("Horizontal", 30),
    Sketcher.Constraint("Vertical", 31),
    Sketcher.Constraint("Horizontal", 33),
    Sketcher.Constraint("Vertical", 39),
    Sketcher.Constraint("Horizontal", 40),
    Sketcher.Constraint("Vertical", 41),
    Sketcher.Constraint("Horizontal", 42),
    Sketcher.Constraint("Vertical", 43),
    Sketcher.Constraint("Horizontal", 44),
    Sketcher.Constraint("Vertical", 45),
    Sketcher.Constraint("Coincident", 6, 3, 4, 3),
    Sketcher.Constraint("Coincident", 28, 3, 4, 3),
    Sketcher.Constraint("Coincident", 32, 3, 4, 3),
    Sketcher.Constraint("Coincident", 46, 3, 35, 3),
    Sketcher.Constraint("Coincident", 47, 3, 24, 3),
    Sketcher.Constraint("Equal", 2, 8),
    Sketcher.Constraint("Equal", 8, 9),
    Sketcher.Constraint("Equal", 22, 23),
    Sketcher.Constraint("Equal", 25, 26),
    Sketcher.Constraint("Equal", 28, 29),
    Sketcher.Constraint("Equal", 29, 32),
    Sketcher.Constraint("Equal", 26, 34),
    Sketcher.Constraint("Equal", 24, 35),
    Sketcher.Constraint("Equal", 35, 36),
    Sketcher.Constraint("Equal", 23, 37),
    Sketcher.Constraint("Equal", 37, 38),
    Sketcher.Constraint("Equal", 46, 47),
    Sketcher.Constraint("Symmetric", 2, 3, 8, 3, -2),
    Sketcher.Constraint("Symmetric", 25, 3, 34, 3, -2),
    Sketcher.Constraint("Symmetric", 22, 3, 37, 3, -2),
    Sketcher.Constraint("Symmetric", 4, 1, 5, 1, -2),
    Sketcher.Constraint("Symmetric", 20, 2, 39, 2, -2),
    Sketcher.Constraint("Symmetric", 18, 2, 41, 2, -2),
    Sketcher.Constraint("Symmetric", 16, 2, 43, 2, -2),
    Sketcher.Constraint("Horizontal", 38, 3, 8, 2),
    Sketcher.Constraint("Horizontal", 0, 2, 12, 2),
    Sketcher.Constraint("Horizontal", 11, 2, 14, 2),
    Sketcher.Constraint("Horizontal", 10, 2, 15, 2),
    Sketcher.Constraint("Horizontal", 8, 2, 22, 1),
    Sketcher.Constraint("Horizontal", 34, 3, 25, 1),
    Sketcher.Constraint("Horizontal", 5, 1, 26, 1),
    Sketcher.Constraint("Horizontal", 28, 2, 31, 2),
    Sketcher.Constraint("Horizontal", 47, 3, 35, 2),
    Sketcher.Constraint("Horizontal", 22, 1, 37, 1),
    Sketcher.Constraint("Vertical", 9, 3, 25, 3),
    Sketcher.Constraint("Vertical", 23, 3, 20, 2),
    Sketcher.Constraint("Equal", 0, 17),
    Sketcher.Constraint("Radius", 2, Q("12 mm")),
    Sketcher.Constraint("Diameter", 46, Q("3.5 mm")),
    Sketcher.Constraint("Radius", 4, Q("11.5 mm")),
    Sketcher.Constraint("Radius", 28, Q("14.5 mm")),
    Sketcher.Constraint("DistanceX", 0, 2, 0, 1, Q("3 mm")),
    Sketcher.Constraint("DistanceY", 10, 1, 10, 2, Q("1 mm")),
    Sketcher.Constraint("DistanceY", 19, 1, 19, 2, Q("2 mm")),
    Sketcher.Constraint("Radius", 24, Q("3.25 mm")),
    Sketcher.Constraint("DistanceX", 18, 2, 18, 1, Q("0.7 mm")),
    Sketcher.Constraint("DistanceX", 20, 2, 20, 1, Q("1.1 mm")),
    Sketcher.Constraint("DistanceX", 44, 2, 44, 1, Q("0.2 mm")),
    Sketcher.Constraint("DistanceY", 1, 2, 1, 1, Q("9.5 mm")),
    Sketcher.Constraint("DistanceY", 11, 1, 11, 2, Q("4.8 mm")),
    Sketcher.Constraint("DistanceY", 11, 2, -1, 1, Q("17 mm")),
    Sketcher.Constraint("DistanceX", 30, 2, 30, 1, Q("7.25 mm")),
    Sketcher.Constraint("DistanceX", 2, 3, -1, 1, Q("21.1 mm")),
    Sketcher.Constraint("DistanceY", 4, 3, -1, 1, Q("41.1 mm")),
    Sketcher.Constraint("DistanceY", 22, 3, -1, 1, Q("23.8 mm")),
    Sketcher.Constraint("DistanceX", -1, 1, 24, 3, Q("24.3 mm")),
    Sketcher.Constraint("DistanceY", 4, 1, -1, 1, Q("31.8 mm")),
    Sketcher.Constraint("DistanceY", 24, 3, -1, 1, Q("26.05 mm")),
    Sketcher.Constraint("DistanceX", 13, 2, 13, 1, Q("3.055728 mm")),
])
sketch3.setExpression("Constraints[110]", "Params.sketch3_radius")
sketch3.setExpression("Constraints[111]", "Params.sketch3_diameter")
sketch3.setExpression("Constraints[112]", "Params.sketch3_radius2")
sketch3.setExpression("Constraints[113]", "Params.sketch3_radius3")
sketch3.setExpression("Constraints[114]", "Params.sketch3_width")
pad3 = body2.newObject("PartDesign::Pad", "Pad002")
pad3.Profile = sketch3
pad3.setExpression("Length", "Params.pad3_length")
pad3.Reversed = True

doc.recompute()
